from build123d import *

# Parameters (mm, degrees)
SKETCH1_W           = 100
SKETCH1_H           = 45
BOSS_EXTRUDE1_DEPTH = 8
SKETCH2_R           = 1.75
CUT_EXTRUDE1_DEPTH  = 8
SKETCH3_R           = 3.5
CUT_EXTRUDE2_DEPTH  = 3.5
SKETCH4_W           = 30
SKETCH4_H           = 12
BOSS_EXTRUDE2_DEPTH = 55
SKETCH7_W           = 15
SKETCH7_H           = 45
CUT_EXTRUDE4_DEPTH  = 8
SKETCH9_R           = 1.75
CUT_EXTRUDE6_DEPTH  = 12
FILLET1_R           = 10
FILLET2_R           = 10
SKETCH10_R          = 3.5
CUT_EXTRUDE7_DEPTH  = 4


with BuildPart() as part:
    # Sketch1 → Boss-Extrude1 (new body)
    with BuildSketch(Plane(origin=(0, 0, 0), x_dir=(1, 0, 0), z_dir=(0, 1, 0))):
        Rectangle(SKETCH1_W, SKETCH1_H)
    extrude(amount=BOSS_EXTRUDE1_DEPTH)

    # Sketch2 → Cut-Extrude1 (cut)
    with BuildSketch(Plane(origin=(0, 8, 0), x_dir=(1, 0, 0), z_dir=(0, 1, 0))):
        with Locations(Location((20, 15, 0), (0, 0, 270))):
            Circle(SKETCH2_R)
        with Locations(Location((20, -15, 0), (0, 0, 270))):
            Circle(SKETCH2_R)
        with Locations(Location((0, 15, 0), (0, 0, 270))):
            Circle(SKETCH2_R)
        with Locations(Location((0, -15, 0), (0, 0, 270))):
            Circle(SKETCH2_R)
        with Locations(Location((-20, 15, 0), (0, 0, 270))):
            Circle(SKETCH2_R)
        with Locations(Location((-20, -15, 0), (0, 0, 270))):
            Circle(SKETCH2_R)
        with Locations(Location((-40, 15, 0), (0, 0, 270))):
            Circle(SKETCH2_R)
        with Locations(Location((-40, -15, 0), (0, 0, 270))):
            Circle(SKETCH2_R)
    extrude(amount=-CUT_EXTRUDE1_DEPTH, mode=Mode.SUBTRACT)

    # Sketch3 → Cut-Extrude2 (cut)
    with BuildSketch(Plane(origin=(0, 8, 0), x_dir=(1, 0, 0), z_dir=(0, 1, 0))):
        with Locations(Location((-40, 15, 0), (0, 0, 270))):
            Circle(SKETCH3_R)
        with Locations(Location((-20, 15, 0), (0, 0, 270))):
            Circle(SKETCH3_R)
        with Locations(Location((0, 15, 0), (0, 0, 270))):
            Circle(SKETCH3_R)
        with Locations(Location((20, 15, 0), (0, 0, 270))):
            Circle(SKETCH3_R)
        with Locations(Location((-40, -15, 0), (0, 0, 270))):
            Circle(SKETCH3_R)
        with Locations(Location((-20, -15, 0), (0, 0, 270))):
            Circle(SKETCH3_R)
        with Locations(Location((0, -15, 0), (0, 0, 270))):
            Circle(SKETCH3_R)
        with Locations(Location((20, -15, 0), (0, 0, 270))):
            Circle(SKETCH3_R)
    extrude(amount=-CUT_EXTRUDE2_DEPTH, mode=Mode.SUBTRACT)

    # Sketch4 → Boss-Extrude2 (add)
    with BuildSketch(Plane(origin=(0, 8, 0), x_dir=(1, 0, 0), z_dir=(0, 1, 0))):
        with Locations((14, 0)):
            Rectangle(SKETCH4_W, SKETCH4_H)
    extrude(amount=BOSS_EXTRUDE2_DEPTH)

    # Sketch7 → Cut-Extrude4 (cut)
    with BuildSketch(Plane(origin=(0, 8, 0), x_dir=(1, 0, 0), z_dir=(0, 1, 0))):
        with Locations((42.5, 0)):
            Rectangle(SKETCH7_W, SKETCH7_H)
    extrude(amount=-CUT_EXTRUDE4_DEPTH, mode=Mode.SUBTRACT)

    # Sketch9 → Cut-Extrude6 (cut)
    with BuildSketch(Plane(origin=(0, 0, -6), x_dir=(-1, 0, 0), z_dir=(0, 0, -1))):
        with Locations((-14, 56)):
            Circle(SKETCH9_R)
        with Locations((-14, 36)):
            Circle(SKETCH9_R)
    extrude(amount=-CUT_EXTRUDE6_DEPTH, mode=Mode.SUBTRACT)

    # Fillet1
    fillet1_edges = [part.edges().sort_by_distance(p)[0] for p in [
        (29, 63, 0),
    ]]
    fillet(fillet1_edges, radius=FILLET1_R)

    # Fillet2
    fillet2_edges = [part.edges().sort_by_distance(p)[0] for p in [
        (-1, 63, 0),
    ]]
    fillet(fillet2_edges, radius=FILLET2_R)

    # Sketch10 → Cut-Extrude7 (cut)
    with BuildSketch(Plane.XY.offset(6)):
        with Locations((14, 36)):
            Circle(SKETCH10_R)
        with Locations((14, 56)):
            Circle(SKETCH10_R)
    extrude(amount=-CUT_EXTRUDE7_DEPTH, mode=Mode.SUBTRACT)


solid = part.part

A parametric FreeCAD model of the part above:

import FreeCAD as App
import Part
import Sketcher
from FreeCAD import Vector
Q = App.Units.Quantity


def edges_at(feature, points):
    """Names of the edges that pass closest to the given points."""
    edges = feature.Shape.Edges
    near = lambda p: min(range(len(edges)), key=lambda i: edges[i].distToShape(Part.Vertex(*p))[0])
    return sorted({f"Edge{near(p) + 1}" for p in points})


def add_polygon(sketch, points):
    """Adds a closed chain of lines whose ends are joined by coincident constraints."""
    first, n = sketch.GeometryCount, len(points)
    for a, b in zip(points, points[1:] + points[:1]):
        sketch.addGeometry(Part.LineSegment(App.Vector(*a, 0), App.Vector(*b, 0)), False)
    for i in range(n):
        sketch.addConstraint(Sketcher.Constraint("Coincident", first + i, 2, first + (i + 1) % n, 1))

doc = App.newDocument("Part")
body = doc.addObject("PartDesign::Body", "Body")

# Sketch on XZ plane
sketch1 = doc.addObject("Sketcher::SketchObject", "Sketch")
body.addObject(sketch1)
sketch1.AttachmentSupport = (doc.XZ_Plane, [""])
sketch1.MapMode = "FlatFace"
add_polygon(sketch1, [(-50, -22), (-50, 22), (50, 22), (50, -22)])  # lines 0-3
sketch1.addConstraint([
    Sketcher.Constraint("Vertical", 0),
    Sketcher.Constraint("Horizontal", 1),
    Sketcher.Constraint("Vertical", 2),
    Sketcher.Constraint("Horizontal", 3),
    Sketcher.Constraint("Symmetric", 0, 2, 2, 2, -1, 1),
    Sketcher.Constraint("DistanceX", 1, 1, 1, 2, Q("100 mm")),
    Sketcher.Constraint("DistanceY", 0, 1, 0, 2, Q("45 mm")),
])
pad1 = doc.addObject("PartDesign::Pad", "Pad")
body.addObject(pad1)
pad1.Profile = sketch1
pad1.Length = 8
pad1.Reversed = True

# Sketch on XZ plane
sketch2 = doc.addObject("Sketcher::SketchObject", "Sketch001")
body.addObject(sketch2)
sketch2.AttachmentSupport = (doc.XZ_Plane, [""])
sketch2.MapMode = "FlatFace"
sketch2.AttachmentOffset = App.Placement(Vector(0, 0, -8), App.Rotation())
sketch2.addGeometry([
    Part.Circle(Vector(20, -15, 0), Vector(0, 0, 1), 1.8),  # 0
    Part.Circle(Vector(20, 15, 0), Vector(0, 0, 1), 1.8),  # 1
    Part.Circle(Vector(0, -15, 0), Vector(0, 0, 1), 1.8),  # 2
    Part.Circle(Vector(0, 15, 0), Vector(0, 0, 1), 1.8),  # 3
    Part.Circle(Vector(-20, -15, 0), Vector(0, 0, 1), 1.8),  # 4
    Part.Circle(Vector(-20, 15, 0), Vector(0, 0, 1), 1.8),  # 5
    Part.Circle(Vector(-40, -15, 0), Vector(0, 0, 1), 1.8),  # 6
    Part.Circle(Vector(-40, 15, 0), Vector(0, 0, 1), 1.8),  # 7
], False)
sketch2.addConstraint([
    Sketcher.Constraint("Equal", 0, 1),
    Sketcher.Constraint("Equal", 1, 2),
    Sketcher.Constraint("Equal", 2, 3),
    Sketcher.Constraint("Equal", 3, 4),
    Sketcher.Constraint("Equal", 4, 5),
    Sketcher.Constraint("Equal", 5, 6),
    Sketcher.Constraint("Equal", 6, 7),
    Sketcher.Constraint("Symmetric", 2, 3, 3, 3, -1, 1),
    Sketcher.Constraint("Symmetric", 1, 3, 4, 3, -1, 1),
    Sketcher.Constraint("Symmetric", 0, 3, 5, 3, -1, 1),
    Sketcher.Constraint("Symmetric", 0, 3, 4, 3, -2),
    Sketcher.Constraint("Symmetric", 6, 3, 7, 3, -1),
    Sketcher.Constraint("PointOnObject", 2, 3, -2),
    Sketcher.Constraint("Horizontal", 0, 3, 2, 3),
    Sketcher.Constraint("Horizontal", 4, 3, 6, 3),
    Sketcher.Constraint("Diameter", 0, Q("3.5 mm")),
    Sketcher.Constraint("DistanceX", -1, 1, 0, 3, Q("20 mm")),
    Sketcher.Constraint("DistanceY", 0, 3, -1, 1, Q("15 mm")),
    Sketcher.Constraint("DistanceX", 6, 3, -1, 1, Q("40 mm")),
])
pocket1 = doc.addObject("PartDesign::Pocket", "Pocket")
body.addObject(pocket1)
pocket1.Profile = sketch2
pocket1.Length = 8
pocket1.Reversed = True

# Sketch on XZ plane
sketch3 = doc.addObject("Sketcher::SketchObject", "Sketch002")
body.addObject(sketch3)
sketch3.AttachmentSupport = (doc.XZ_Plane, [""])
sketch3.MapMode = "FlatFace"
sketch3.AttachmentOffset = App.Placement(Vector(0, 0, -8), App.Rotation())
sketch3.addGeometry([
    Part.Circle(Vector(-40, -15, 0), Vector(0, 0, 1), 3.5),  # 0
    Part.Circle(Vector(-20, -15, 0), Vector(0, 0, 1), 3.5),  # 1
    Part.Circle(Vector(0, -15, 0), Vector(0, 0, 1), 3.5),  # 2
    Part.Circle(Vector(20, -15, 0), Vector(0, 0, 1), 3.5),  # 3
    Part.Circle(Vector(-40, 15, 0), Vector(0, 0, 1), 3.5),  # 4
    Part.Circle(Vector(-20, 15, 0), Vector(0, 0, 1), 3.5),  # 5
    Part.Circle(Vector(0, 15, 0), Vector(0, 0, 1), 3.5),  # 6
    Part.Circle(Vector(20, 15, 0), Vector(0, 0, 1), 3.5),  # 7
], False)
sketch3.addConstraint([
    Sketcher.Constraint("Equal", 0, 1),
    Sketcher.Constraint("Equal", 1, 2),
    Sketcher.Constraint("Equal", 2, 3),
    Sketcher.Constraint("Equal", 3, 4),
    Sketcher.Constraint("Equal", 4, 5),
    Sketcher.Constraint("Equal", 5, 6),
    Sketcher.Constraint("Equal", 6, 7),
    Sketcher.Constraint("Symmetric", 3, 3, 5, 3, -1, 1),
    Sketcher.Constraint("Symmetric", 2, 3, 6, 3, -1, 1),
    Sketcher.Constraint("Symmetric", 1, 3, 7, 3, -1, 1),
    Sketcher.Constraint("Symmetric", 1, 3, 3, 3, -2),
    Sketcher.Constraint("Symmetric", 0, 3, 4, 3, -1),
    Sketcher.Constraint("PointOnObject", 2, 3, -2),
    Sketcher.Constraint("Horizontal", 0, 3, 1, 3),
    Sketcher.Constraint("Horizontal", 1, 3, 2, 3),
    Sketcher.Constraint("Diameter", 0, Q("7 mm")),
    Sketcher.Constraint("DistanceX", 0, 3, -1, 1, Q("40 mm")),
    Sketcher.Constraint("DistanceY", 0, 3, -1, 1, Q("15 mm")),
    Sketcher.Constraint("DistanceX", 1, 3, -1, 1, Q("20 mm")),
])
pocket2 = doc.addObject("PartDesign::Pocket", "Pocket001")
body.addObject(pocket2)
pocket2.Profile = sketch3
pocket2.Length = 3.5
pocket2.Reversed = True

# Sketch on XZ plane
sketch4 = doc.addObject("Sketcher::SketchObject", "Sketch003")
body.addObject(sketch4)
sketch4.AttachmentSupport = (doc.XZ_Plane, [""])
sketch4.MapMode = "FlatFace"
sketch4.AttachmentOffset = App.Placement(Vector(0, 0, -8), App.Rotation())
add_polygon(sketch4, [(-1, -6), (-1, 6), (29, 6), (29, -6)])  # lines 0-3
sketch4.addConstraint([
    Sketcher.Constraint("Vertical", 0),
    Sketcher.Constraint("Horizontal", 1),
    Sketcher.Constraint("Vertical", 2),
    Sketcher.Constraint("Horizontal", 3),
    Sketcher.Constraint("DistanceX", 1, 1, 1, 2, Q("30 mm")),
    Sketcher.Constraint("DistanceY", 0, 1, 0, 2, Q("12 mm")),
    Sketcher.Constraint("DistanceX", 0, 2, -1, 1, Q("1 mm")),
    Sketcher.Constraint("DistanceY", -1, 1, 0, 2, Q("6 mm")),
])
pad2 = doc.addObject("PartDesign::Pad", "Pad001")
body.addObject(pad2)
pad2.Profile = sketch4
pad2.Length = 55
pad2.Reversed = True

# Sketch on XZ plane
sketch5 = doc.addObject("Sketcher::SketchObject", "Sketch004")
body.addObject(sketch5)
sketch5.AttachmentSupport = (doc.XZ_Plane, [""])
sketch5.MapMode = "FlatFace"
sketch5.AttachmentOffset = App.Placement(Vector(0, 0, -8), App.Rotation())
add_polygon(sketch5, [(35, -22), (35, 22), (50, 22), (50, -22)])  # lines 0-3
sketch5.addConstraint([
    Sketcher.Constraint("Vertical", 0),
    Sketcher.Constraint("Horizontal", 1),
    Sketcher.Constraint("Vertical", 2),
    Sketcher.Constraint("Horizontal", 3),
    Sketcher.Constraint("DistanceX", 1, 1, 1, 2, Q("15 mm")),
    Sketcher.Constraint("DistanceY", 0, 1, 0, 2, Q("45 mm")),
    Sketcher.Constraint("DistanceX", -1, 1, 0, 2, Q("35 mm")),
    Sketcher.Constraint("DistanceY", -1, 1, 0, 2, Q("22.5 mm")),
])
pocket3 = doc.addObject("PartDesign::Pocket", "Pocket002")
body.addObject(pocket3)
pocket3.Profile = sketch5
pocket3.Length = 8
pocket3.Reversed = True

# Sketch on XY plane
sketch6 = doc.addObject("Sketcher::SketchObject", "Sketch005")
body.addObject(sketch6)
sketch6.AttachmentSupport = (doc.XY_Plane, [""])
sketch6.MapMode = "FlatFace"
sketch6.AttachmentOffset = App.Placement(Vector(0, 0, -6), App.Rotation())
sketch6.addGeometry([
    Part.Circle(Vector(14, 56, 0), Vector(0, 0, 1), 1.8),
    Part.Circle(Vector(14, 36, 0), Vector(0, 0, 1), 1.8),
], False)
sketch6.addConstraint([
    Sketcher.Constraint("Equal", 0, 1),
    Sketcher.Constraint("Vertical", 0, 3, 1, 3),
    Sketcher.Constraint("Diameter", 0, Q("3.5 mm")),
    Sketcher.Constraint("DistanceX", -1, 1, 0, 3, Q("14 mm")),
    Sketcher.Constraint("DistanceY", -1, 1, 0, 3, Q("56 mm")),
    Sketcher.Constraint("DistanceY", -1, 1, 1, 3, Q("36 mm")),
])
pocket4 = doc.addObject("PartDesign::Pocket", "Pocket003")
body.addObject(pocket4)
pocket4.Profile = sketch6
pocket4.Length = 12
pocket4.Reversed = True
doc.recompute()

fillet = doc.addObject("PartDesign::Fillet", "Fillet")
body.addObject(fillet)
fillet.Base = (pocket4, edges_at(pocket4, [(29, 63, 0)]))
fillet.Radius = 10
doc.recompute()

fillet2 = doc.addObject("PartDesign::Fillet", "Fillet001")
body.addObject(fillet2)
fillet2.Base = (fillet, edges_at(fillet, [(-1, 63, 0)]))
fillet2.Radius = 10

# Sketch on XY plane
sketch7 = doc.addObject("Sketcher::SketchObject", "Sketch006")
body.addObject(sketch7)
sketch7.AttachmentSupport = (doc.XY_Plane, [""])
sketch7.MapMode = "FlatFace"
sketch7.AttachmentOffset = App.Placement(Vector(0, 0, 6), App.Rotation())
sketch7.addGeometry([
    Part.Circle(Vector(14, 36, 0), Vector(0, 0, 1), 3.5),
    Part.Circle(Vector(14, 56, 0), Vector(0, 0, 1), 3.5),
], False)
sketch7.addConstraint([
    Sketcher.Constraint("Equal", 0, 1),
    Sketcher.Constraint("Vertical", 0, 3, 1, 3),
    Sketcher.Constraint("Diameter", 0, Q("7 mm")),
    Sketcher.Constraint("DistanceX", -1, 1, 0, 3, Q("14 mm")),
    Sketcher.Constraint("DistanceY", -1, 1, 0, 3, Q("36 mm")),
    Sketcher.Constraint("DistanceY", -1, 1, 1, 3, Q("56 mm")),
])
pocket5 = doc.addObject("PartDesign::Pocket", "Pocket004")
body.addObject(pocket5)
pocket5.Profile = sketch7
pocket5.Length = 4

doc.recompute()
